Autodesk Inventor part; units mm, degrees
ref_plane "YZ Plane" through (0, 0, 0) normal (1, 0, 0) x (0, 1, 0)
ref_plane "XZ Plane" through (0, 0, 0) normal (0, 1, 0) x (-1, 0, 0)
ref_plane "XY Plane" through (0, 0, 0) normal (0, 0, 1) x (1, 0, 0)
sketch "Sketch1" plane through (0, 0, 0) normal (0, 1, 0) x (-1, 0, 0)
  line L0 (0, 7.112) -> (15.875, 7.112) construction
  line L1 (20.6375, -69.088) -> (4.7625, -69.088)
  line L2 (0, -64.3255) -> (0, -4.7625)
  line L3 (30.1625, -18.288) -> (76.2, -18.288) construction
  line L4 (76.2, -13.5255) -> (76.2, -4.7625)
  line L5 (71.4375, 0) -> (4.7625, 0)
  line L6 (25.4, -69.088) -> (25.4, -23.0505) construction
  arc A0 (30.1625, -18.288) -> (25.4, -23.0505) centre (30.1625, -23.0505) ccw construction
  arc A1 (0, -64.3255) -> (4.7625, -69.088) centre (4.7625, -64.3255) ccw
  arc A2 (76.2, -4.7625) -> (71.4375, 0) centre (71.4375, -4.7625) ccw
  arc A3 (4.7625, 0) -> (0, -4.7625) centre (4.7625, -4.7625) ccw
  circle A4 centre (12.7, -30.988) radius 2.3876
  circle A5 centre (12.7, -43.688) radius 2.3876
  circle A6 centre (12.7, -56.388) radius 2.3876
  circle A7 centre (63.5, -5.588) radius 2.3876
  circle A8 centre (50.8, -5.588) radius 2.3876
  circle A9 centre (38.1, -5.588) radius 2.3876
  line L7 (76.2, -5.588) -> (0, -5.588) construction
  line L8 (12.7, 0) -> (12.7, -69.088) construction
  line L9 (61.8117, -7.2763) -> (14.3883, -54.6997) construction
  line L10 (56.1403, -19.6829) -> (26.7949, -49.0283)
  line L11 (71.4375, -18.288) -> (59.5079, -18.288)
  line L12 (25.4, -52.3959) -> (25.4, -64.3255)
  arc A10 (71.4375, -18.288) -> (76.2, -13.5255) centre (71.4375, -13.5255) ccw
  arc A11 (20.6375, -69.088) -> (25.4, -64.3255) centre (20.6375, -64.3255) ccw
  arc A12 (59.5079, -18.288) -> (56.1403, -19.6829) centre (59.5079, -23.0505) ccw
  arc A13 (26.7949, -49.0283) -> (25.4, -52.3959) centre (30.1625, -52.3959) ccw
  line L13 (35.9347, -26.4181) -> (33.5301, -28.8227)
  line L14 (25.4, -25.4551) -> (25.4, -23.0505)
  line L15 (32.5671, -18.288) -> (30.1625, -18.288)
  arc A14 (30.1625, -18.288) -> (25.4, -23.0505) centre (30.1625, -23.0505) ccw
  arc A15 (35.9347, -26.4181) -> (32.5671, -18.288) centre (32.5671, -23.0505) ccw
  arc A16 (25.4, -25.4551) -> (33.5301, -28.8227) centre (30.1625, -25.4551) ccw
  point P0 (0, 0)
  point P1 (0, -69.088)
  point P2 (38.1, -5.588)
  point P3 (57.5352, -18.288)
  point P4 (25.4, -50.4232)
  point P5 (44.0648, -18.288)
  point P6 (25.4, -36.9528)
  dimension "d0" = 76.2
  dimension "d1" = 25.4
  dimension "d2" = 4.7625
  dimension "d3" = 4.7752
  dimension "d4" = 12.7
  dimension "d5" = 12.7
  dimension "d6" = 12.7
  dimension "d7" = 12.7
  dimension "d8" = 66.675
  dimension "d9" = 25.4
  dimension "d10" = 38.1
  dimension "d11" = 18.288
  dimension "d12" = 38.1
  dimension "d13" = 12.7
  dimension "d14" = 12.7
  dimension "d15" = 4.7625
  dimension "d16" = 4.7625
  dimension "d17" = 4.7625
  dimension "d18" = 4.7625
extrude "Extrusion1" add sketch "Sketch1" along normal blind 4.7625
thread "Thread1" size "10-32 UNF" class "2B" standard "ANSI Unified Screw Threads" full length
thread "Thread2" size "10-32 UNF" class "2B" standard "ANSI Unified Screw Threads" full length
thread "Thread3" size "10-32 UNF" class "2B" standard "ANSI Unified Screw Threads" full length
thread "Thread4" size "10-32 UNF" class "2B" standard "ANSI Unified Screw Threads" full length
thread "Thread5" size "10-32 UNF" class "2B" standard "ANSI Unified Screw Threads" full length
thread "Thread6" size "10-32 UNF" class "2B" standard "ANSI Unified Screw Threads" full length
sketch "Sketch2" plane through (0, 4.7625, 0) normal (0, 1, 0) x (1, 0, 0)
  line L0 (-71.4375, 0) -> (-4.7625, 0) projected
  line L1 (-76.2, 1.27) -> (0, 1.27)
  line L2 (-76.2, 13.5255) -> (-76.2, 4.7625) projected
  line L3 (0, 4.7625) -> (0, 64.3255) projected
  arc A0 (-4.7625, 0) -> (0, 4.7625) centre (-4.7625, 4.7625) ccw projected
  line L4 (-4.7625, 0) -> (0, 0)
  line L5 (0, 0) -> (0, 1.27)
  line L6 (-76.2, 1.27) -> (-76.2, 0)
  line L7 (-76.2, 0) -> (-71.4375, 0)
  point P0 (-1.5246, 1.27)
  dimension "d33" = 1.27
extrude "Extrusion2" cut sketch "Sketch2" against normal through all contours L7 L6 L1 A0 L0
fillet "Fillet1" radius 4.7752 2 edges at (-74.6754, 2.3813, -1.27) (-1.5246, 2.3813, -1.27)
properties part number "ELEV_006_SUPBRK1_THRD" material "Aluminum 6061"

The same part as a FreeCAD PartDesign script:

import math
import FreeCAD as App
import Part
import Sketcher
from FreeCAD import Vector
Q = App.Units.Quantity


def edges_at(feature, points):
    """Names of the edges that pass closest to the given points."""
    edges = feature.Shape.Edges
    near = lambda p: min(range(len(edges)), key=lambda i: edges[i].distToShape(Part.Vertex(*p))[0])
    return sorted({f"Edge{near(p) + 1}" for p in points})

doc = App.newDocument("Part")
params = doc.addObject("Spreadsheet::Sheet", "Params")
for row, (alias, value) in enumerate([
    ("sketch1_diameter", "0.188 in"),
    ("sketch1_radius", "0.1875 in"),
    ("pad1_length", "0.1875 in"),
    ("sketch2_height", "0.05 in"),
    ("sketch2_radius", "0.1875 in"),
    ("sketch2_width", "2.8125 in"),
    ("fillet_radius", "0.188 in"),
], start=1):
    params.set(f"A{row}", alias)
    params.set(f"B{row}", "=" + value)
    params.setAlias(f"B{row}", alias)

body = doc.addObject("PartDesign::Body", "Body")

sketch1 = doc.addObject("Sketcher::SketchObject", "Sketch")
body.addObject(sketch1)
sketch1.AttachmentSupport = (doc.XZ_Plane, [""])
sketch1.MapMode = "FlatFace"
sketch1.addGeometry([
    Part.LineSegment(Vector(-4.8, -69.1, 0), Vector(-20.6, -69.1, 0)),
    Part.ArcOfCircle(Part.Circle(Vector(-20.6, -64.3, 0), Vector(0, 0, 1), 4.8), math.radians(180), math.radians(270)),
    Part.LineSegment(Vector(-25.4, -64.3, 0), Vector(-25.4, -52.4, 0)),
    Part.ArcOfCircle(Part.Circle(Vector(-30.2, -52.4, 0), Vector(0, 0, 1), 4.8), math.radians(0), math.radians(45)),
    Part.LineSegment(Vector(-26.8, -49, 0), Vector(-56.1, -19.7, 0)),
    Part.ArcOfCircle(Part.Circle(Vector(-59.5, -23.1, 0), Vector(0, 0, 1), 4.8), math.radians(45), math.radians(90)),
    Part.LineSegment(Vector(-59.5, -18.3, 0), Vector(-71.4, -18.3, 0)),
    Part.ArcOfCircle(Part.Circle(Vector(-71.4, -13.5, 0), Vector(0, 0, 1), 4.8), math.radians(180), math.radians(270)),
    Part.LineSegment(Vector(-76.2, -13.5, 0), Vector(-76.2, -4.8, 0)),
    Part.ArcOfCircle(Part.Circle(Vector(-71.4, -4.8, 0), Vector(0, 0, 1), 4.8), math.radians(90), math.radians(180)),
    Part.LineSegment(Vector(-71.4, 0, 0), Vector(-4.8, 0, 0)),
    Part.ArcOfCircle(Part.Circle(Vector(-4.8, -4.8, 0), Vector(0, 0, 1), 4.8), math.radians(0), math.radians(90)),
    Part.LineSegment(Vector(0, -4.8, 0), Vector(0, -64.3, 0)),
    Part.ArcOfCircle(Part.Circle(Vector(-4.8, -64.3, 0), Vector(0, 0, 1), 4.8), math.radians(-90), math.radians(0)),
    Part.Circle(Vector(-12.7, -56.4, 0), Vector(0, 0, 1), 2.4),
    Part.Circle(Vector(-12.7, -43.7, 0), Vector(0, 0, 1), 2.4),
    Part.Circle(Vector(-12.7, -31, 0), Vector(0, 0, 1), 2.4),
    Part.ArcOfCircle(Part.Circle(Vector(-32.6, -23.1, 0), Vector(0, 0, 1), 4.8), math.radians(90), math.radians(225)),
    Part.LineSegment(Vector(-35.9, -26.4, 0), Vector(-33.5, -28.8, 0)),
    Part.ArcOfCircle(Part.Circle(Vector(-30.2, -25.5, 0), Vector(0, 0, 1), 4.8), math.radians(-135), math.radians(0)),
    Part.LineSegment(Vector(-25.4, -25.5, 0), Vector(-25.4, -23.1, 0)),
    Part.ArcOfCircle(Part.Circle(Vector(-30.2, -23.1, 0), Vector(0, 0, 1), 4.8), math.radians(0), math.radians(90)),
    Part.LineSegment(Vector(-30.2, -18.3, 0), Vector(-32.6, -18.3, 0)),
    Part.Circle(Vector(-38.1, -5.6, 0), Vector(0, 0, 1), 2.4),
    Part.Circle(Vector(-50.8, -5.6, 0), Vector(0, 0, 1), 2.4),
    Part.Circle(Vector(-63.5, -5.6, 0), Vector(0, 0, 1), 2.4),
], False)
sketch1.addConstraint([
    Sketcher.Constraint("Tangent", 0, 2, 1, 2),
    Sketcher.Constraint("Tangent", 1, 1, 2, 1),
    Sketcher.Constraint("Tangent", 2, 2, 3, 1),
    Sketcher.Constraint("Tangent", 3, 2, 4, 1),
    Sketcher.Constraint("Tangent", 4, 2, 5, 1),
    Sketcher.Constraint("Tangent", 5, 2, 6, 1),
    Sketcher.Constraint("Tangent", 6, 2, 7, 2),
    Sketcher.Constraint("Tangent", 7, 1, 8, 1),
    Sketcher.Constraint("Tangent", 8, 2, 9, 2),
    Sketcher.Constraint("Tangent", 9, 1, 10, 1),
    Sketcher.Constraint("Tangent", 10, 2, 11, 2),
    Sketcher.Constraint("Tangent", 11, 1, 12, 1),
    Sketcher.Constraint("Tangent", 12, 2, 13, 2),
    Sketcher.Constraint("Tangent", 13, 1, 0, 1),
    Sketcher.Constraint("Tangent", 17, 2, 18, 1),
    Sketcher.Constraint("Tangent", 18, 2, 19, 1),
    Sketcher.Constraint("Tangent", 19, 2, 20, 1),
    Sketcher.Constraint("Tangent", 20, 2, 21, 1),
    Sketcher.Constraint("Tangent", 21, 2, 22, 1),
    Sketcher.Constraint("Tangent", 22, 2, 17, 1),
    Sketcher.Constraint("Horizontal", 0),
    Sketcher.Constraint("Vertical", 2),
    Sketcher.Constraint("Horizontal", 6),
    Sketcher.Constraint("Vertical", 8),
    Sketcher.Constraint("Horizontal", 10),
    Sketcher.Constraint("Vertical", 12),
    Sketcher.Constraint("Vertical", 20),
    Sketcher.Constraint("Horizontal", 22),
    Sketcher.Constraint("Equal", 1, 3),
    Sketcher.Constraint("Equal", 3, 5),
    Sketcher.Constraint("Equal", 5, 7),
    Sketcher.Constraint("Equal", 7, 9),
    Sketcher.Constraint("Equal", 9, 11),
    Sketcher.Constraint("Equal", 11, 13),
    Sketcher.Constraint("Equal", 14, 15),
    Sketcher.Constraint("Equal", 15, 16),
    Sketcher.Constraint("Equal", 13, 17),
    Sketcher.Constraint("Equal", 17, 19),
    Sketcher.Constraint("Equal", 19, 21),
    Sketcher.Constraint("Equal", 16, 23),
    Sketcher.Constraint("Equal", 23, 24),
    Sketcher.Constraint("Equal", 24, 25),
    Sketcher.Constraint("PointOnObject", 9, 1, -1),
    Sketcher.Constraint("PointOnObject", 11, 1, -2),
    Sketcher.Constraint("Parallel", 4, 18),
    Sketcher.Constraint("Horizontal", 5, 3, 17, 3),
    Sketcher.Constraint("Horizontal", 23, 3, 24, 3),
    Sketcher.Constraint("Horizontal", 24, 3, 25, 3),
    Sketcher.Constraint("Vertical", 14, 3, 15, 3),
    Sketcher.Constraint("Vertical", 15, 3, 16, 3),
    Sketcher.Constraint("Vertical", 3, 3, 19, 3),
    Sketcher.Constraint("Equal", 6, 2),
    Sketcher.Constraint("Equal", 22, 20),
    Sketcher.Constraint("Diameter", 14, Q("0.188 in")),
    Sketcher.Constraint("DistanceX", 1, 1, -1, 1, Q("1 in")),
    Sketcher.Constraint("DistanceX", 7, 1, -1, 1, Q("3 in")),
    Sketcher.Constraint("Radius", 1, Q("0.1875 in")),
    Sketcher.Constraint("DistanceY", 14, 3, 16, 3, Q("1 in")),
    Sketcher.Constraint("DistanceX", 25, 3, 23, 3, Q("1 in")),
    Sketcher.Constraint("DistanceY", 0, 2, 15, 3, Q("1 in")),
    Sketcher.Constraint("DistanceX", 14, 3, -1, 1, Q("0.5 in")),
    Sketcher.Constraint("DistanceX", 23, 3, -1, 1, Q("1.5 in")),
    Sketcher.Constraint("DistanceY", 14, 3, 15, 3, Q("0.5 in")),
    Sketcher.Constraint("DistanceX", 24, 3, 23, 3, Q("0.5 in")),
    Sketcher.Constraint("DistanceY", 5, 2, 25, 3, Q("0.5 in")),
    Sketcher.Constraint("DistanceY", 5, 2, -1, 1, Q("0.72 in")),
    Sketcher.Constraint("DistanceX", 6, 2, 6, 1, Q("11.9296 mm")),
    Sketcher.Constraint("DistanceX", 22, 2, 22, 1, Q("2.4046 mm")),
])
sketch1.setExpression("Constraints[53]", "Params.sketch1_diameter")
sketch1.setExpression("Constraints[56]", "Params.sketch1_radius")
pad1 = doc.addObject("PartDesign::Pad", "Pad")
body.addObject(pad1)
pad1.Profile = sketch1
pad1.setExpression("Length", "Params.pad1_length")
pad1.Reversed = True

sketch2 = doc.addObject("Sketcher::SketchObject", "Sketch001")
body.addObject(sketch2)
sketch2.AttachmentSupport = (doc.XZ_Plane, [""])
sketch2.MapMode = "FlatFace"
sketch2.AttachmentOffset = App.Placement(Vector(0, 0, -0.1875 * 25.4), App.Rotation())
sketch2.addGeometry([
    Part.LineSegment(Vector(-76.2, 0, 0), Vector(-4.8, 0, 0)),
    Part.ArcOfCircle(Part.Circle(Vector(-4.8, -4.8, 0), Vector(0, 0, 1), 4.8), math.radians(47), math.radians(90)),
    Part.LineSegment(Vector(-1.5, -1.3, 0), Vector(-76.2, -1.3, 0)),
    Part.LineSegment(Vector(-76.2, -1.3, 0), Vector(-76.2, 0, 0)),
], False)
sketch2.addConstraint([
    Sketcher.Constraint("Tangent", 0, 2, 1, 2),
    Sketcher.Constraint("Coincident", 1, 1, 2, 1),
    Sketcher.Constraint("Coincident", 2, 2, 3, 1),
    Sketcher.Constraint("Coincident", 3, 2, 0, 1),
    Sketcher.Constraint("Horizontal", 0),
    Sketcher.Constraint("Horizontal", 2),
    Sketcher.Constraint("Vertical", 3),
    Sketcher.Constraint("PointOnObject", 0, 2, -1),
    Sketcher.Constraint("DistanceY", 3, 1, 3, 2, Q("0.05 in")),
    Sketcher.Constraint("DistanceX", 2, 2, -1, 1, Q("3 in")),
    Sketcher.Constraint("Radius", 1, Q("0.1875 in")),
    Sketcher.Constraint("DistanceX", 0, 1, 0, 2, Q("2.8125 in")),
])
sketch2.setExpression("Constraints[8]", "Params.sketch2_height")
sketch2.setExpression("Constraints[10]", "Params.sketch2_radius")
sketch2.setExpression("Constraints[11]", "Params.sketch2_width")
pocket1 = doc.addObject("PartDesign::Pocket", "Pocket")
body.addObject(pocket1)
pocket1.Profile = sketch2
pocket1.Type = "ThroughAll"
pocket1.Reversed = True
doc.recompute()

fillet = doc.addObject("PartDesign::Fillet", "Fillet")
body.addObject(fillet)
fillet.Base = (pocket1, edges_at(pocket1, [(-74.675, 2.381, -1.27), (-1.525, 2.381, -1.27)]))
fillet.setExpression("Radius", "Params.fillet_radius")

doc.recompute()
